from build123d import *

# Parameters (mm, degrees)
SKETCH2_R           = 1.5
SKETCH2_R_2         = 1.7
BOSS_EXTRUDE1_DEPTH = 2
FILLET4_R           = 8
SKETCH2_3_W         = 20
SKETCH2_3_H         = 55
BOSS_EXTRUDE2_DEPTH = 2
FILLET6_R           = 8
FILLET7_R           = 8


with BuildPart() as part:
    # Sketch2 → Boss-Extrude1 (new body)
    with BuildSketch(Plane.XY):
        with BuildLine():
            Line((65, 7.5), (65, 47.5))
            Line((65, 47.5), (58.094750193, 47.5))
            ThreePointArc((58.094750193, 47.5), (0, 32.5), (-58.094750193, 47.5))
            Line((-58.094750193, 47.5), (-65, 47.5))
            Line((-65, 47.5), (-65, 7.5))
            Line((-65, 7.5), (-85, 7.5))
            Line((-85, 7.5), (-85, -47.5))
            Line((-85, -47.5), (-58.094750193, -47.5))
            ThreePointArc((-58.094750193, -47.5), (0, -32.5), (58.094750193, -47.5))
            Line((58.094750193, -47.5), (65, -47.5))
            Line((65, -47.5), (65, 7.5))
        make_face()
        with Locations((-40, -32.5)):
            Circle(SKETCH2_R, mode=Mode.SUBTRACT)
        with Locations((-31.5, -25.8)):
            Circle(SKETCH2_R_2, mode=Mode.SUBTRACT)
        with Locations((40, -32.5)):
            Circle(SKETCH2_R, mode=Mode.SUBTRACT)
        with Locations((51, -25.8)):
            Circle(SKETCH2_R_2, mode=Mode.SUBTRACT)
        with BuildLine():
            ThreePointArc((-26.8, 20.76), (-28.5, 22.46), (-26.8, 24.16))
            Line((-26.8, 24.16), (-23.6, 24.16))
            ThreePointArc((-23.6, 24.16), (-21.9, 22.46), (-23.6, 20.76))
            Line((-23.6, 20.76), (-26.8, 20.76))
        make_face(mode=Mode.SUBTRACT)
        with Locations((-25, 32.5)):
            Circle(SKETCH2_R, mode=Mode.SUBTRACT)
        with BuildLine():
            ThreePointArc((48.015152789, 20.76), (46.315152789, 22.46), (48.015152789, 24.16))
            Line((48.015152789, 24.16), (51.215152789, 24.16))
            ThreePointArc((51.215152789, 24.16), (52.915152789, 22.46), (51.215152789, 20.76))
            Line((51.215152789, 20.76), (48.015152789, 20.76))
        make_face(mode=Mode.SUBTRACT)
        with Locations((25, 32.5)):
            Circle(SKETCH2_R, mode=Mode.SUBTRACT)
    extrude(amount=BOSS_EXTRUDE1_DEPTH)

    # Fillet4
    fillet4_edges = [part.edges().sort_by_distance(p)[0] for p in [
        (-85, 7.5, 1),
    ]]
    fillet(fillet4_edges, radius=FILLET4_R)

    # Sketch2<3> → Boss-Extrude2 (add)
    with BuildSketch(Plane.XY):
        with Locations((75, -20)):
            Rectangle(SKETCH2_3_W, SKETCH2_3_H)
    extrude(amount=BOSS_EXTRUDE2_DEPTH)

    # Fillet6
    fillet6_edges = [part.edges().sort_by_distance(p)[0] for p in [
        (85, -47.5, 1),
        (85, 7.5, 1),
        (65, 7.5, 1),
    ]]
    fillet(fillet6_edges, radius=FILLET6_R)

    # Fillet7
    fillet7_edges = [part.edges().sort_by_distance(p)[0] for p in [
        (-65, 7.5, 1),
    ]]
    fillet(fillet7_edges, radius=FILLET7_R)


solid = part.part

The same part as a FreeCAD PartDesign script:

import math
import FreeCAD as App
import Part
import Sketcher

V = App.Vector


def edges_at(feature, points):
    """Names of the edges that pass closest to the given points."""
    edges = feature.Shape.Edges
    near = lambda p: min(range(len(edges)), key=lambda i: edges[i].distToShape(Part.Vertex(*p))[0])
    return sorted({f"Edge{near(p) + 1}" for p in points})


def add_polygon(sketch, points):
    """Adds a closed chain of lines whose ends are joined by coincident constraints."""
    first, n = sketch.GeometryCount, len(points)
    for a, b in zip(points, points[1:] + points[:1]):
        sketch.addGeometry(Part.LineSegment(App.Vector(*a, 0), App.Vector(*b, 0)), False)
    for i in range(n):
        sketch.addConstraint(Sketcher.Constraint("Coincident", first + i, 2, first + (i + 1) % n, 1))

doc = App.newDocument("Part")
params = doc.addObject("Spreadsheet::Sheet", "Params")
for row, (alias, value) in enumerate([
    ("sketch1_diameter", "3 mm"),
    ("sketch1_radius", "120 mm"),
    ("sketch1_diameter2", "3.4 mm"),
    ("sketch1_width", "20 mm"),
    ("sketch1_height", "40 mm"),
    ("pad1_length", "2 mm"),
    ("fillet_radius", "8 mm"),
    ("sketch2_width", "20 mm"),
    ("sketch2_height", "55 mm"),
    ("pad2_length", "2 mm"),
    ("fillet2_radius", "8 mm"),
    ("fillet3_radius", "8 mm"),
], start=1):
    params.set(f"A{row}", alias)
    params.set(f"B{row}", "=" + value)
    params.setAlias(f"B{row}", alias)

body = doc.addObject("PartDesign::Body", "Body")

sketch1 = doc.addObject("Sketcher::SketchObject", "Sketch")
body.addObject(sketch1)
sketch1.AttachmentSupport = (doc.XY_Plane, [""])
sketch1.MapMode = "FlatFace"
sketch1.addGeometry([
    Part.LineSegment(V(65, 47.5, 0), V(58.1, 47.5, 0)),
    Part.ArcOfCircle(Part.Circle(V(0, 152.5, 0), V(0, 0, 1), 120), math.radians(-119), math.radians(-61)),
    Part.LineSegment(V(-58.1, 47.5, 0), V(-65, 47.5, 0)),
    Part.LineSegment(V(-65, 47.5, 0), V(-65, 7.5, 0)),
    Part.LineSegment(V(-65, 7.5, 0), V(-85, 7.5, 0)),
    Part.LineSegment(V(-85, 7.5, 0), V(-85, -47.5, 0)),
    Part.LineSegment(V(-85, -47.5, 0), V(-58.1, -47.5, 0)),
    Part.ArcOfCircle(Part.Circle(V(0, -152.5, 0), V(0, 0, 1), 120), math.radians(61), math.radians(119)),
    Part.LineSegment(V(58.1, -47.5, 0), V(65, -47.5, 0)),
    Part.LineSegment(V(65, -47.5, 0), V(65, 47.5, 0)),
    Part.Circle(V(-40, -32.5, 0), V(0, 0, 1), 1.5),
    Part.Circle(V(-31.5, -25.8, 0), V(0, 0, 1), 1.7),
    Part.Circle(V(40, -32.5, 0), V(0, 0, 1), 1.5),
    Part.Circle(V(51, -25.8, 0), V(0, 0, 1), 1.7),
    Part.LineSegment(V(-23.6, 20.8, 0), V(-26.8, 20.8, 0)),
    Part.ArcOfCircle(Part.Circle(V(-26.8, 22.5, 0), V(0, 0, 1), 1.7), math.radians(90), math.radians(270)),
    Part.LineSegment(V(-26.8, 24.2, 0), V(-23.6, 24.2, 0)),
    Part.ArcOfCircle(Part.Circle(V(-23.6, 22.5, 0), V(0, 0, 1), 1.7), math.radians(-90), math.radians(90)),
    Part.Circle(V(-25, 32.5, 0), V(0, 0, 1), 1.5),
    Part.Circle(V(25, 32.5, 0), V(0, 0, 1), 1.5),
    Part.LineSegment(V(51.2, 20.8, 0), V(48, 20.8, 0)),
    Part.ArcOfCircle(Part.Circle(V(48, 22.5, 0), V(0, 0, 1), 1.7), math.radians(90), math.radians(270)),
    Part.LineSegment(V(48, 24.2, 0), V(51.2, 24.2, 0)),
    Part.ArcOfCircle(Part.Circle(V(51.2, 22.5, 0), V(0, 0, 1), 1.7), math.radians(-90), math.radians(90)),
], False)
sketch1.addConstraint([
    Sketcher.Constraint("Coincident", 0, 2, 1, 2),
    Sketcher.Constraint("Coincident", 1, 1, 2, 1),
    Sketcher.Constraint("Coincident", 2, 2, 3, 1),
    Sketcher.Constraint("Coincident", 3, 2, 4, 1),
    Sketcher.Constraint("Coincident", 4, 2, 5, 1),
    Sketcher.Constraint("Coincident", 5, 2, 6, 1),
    Sketcher.Constraint("Coincident", 6, 2, 7, 2),
    Sketcher.Constraint("Coincident", 7, 1, 8, 1),
    Sketcher.Constraint("Coincident", 8, 2, 9, 1),
    Sketcher.Constraint("Coincident", 9, 2, 0, 1),
    Sketcher.Constraint("Tangent", 14, 2, 15, 2),
    Sketcher.Constraint("Tangent", 15, 1, 16, 1),
    Sketcher.Constraint("Tangent", 16, 2, 17, 2),
    Sketcher.Constraint("Tangent", 17, 1, 14, 1),
    Sketcher.Constraint("Tangent", 20, 2, 21, 2),
    Sketcher.Constraint("Tangent", 21, 1, 22, 1),
    Sketcher.Constraint("Tangent", 22, 2, 23, 2),
    Sketcher.Constraint("Tangent", 23, 1, 20, 1),
    Sketcher.Constraint("Horizontal", 0),
    Sketcher.Constraint("Horizontal", 2),
    Sketcher.Constraint("Vertical", 3),
    Sketcher.Constraint("Horizontal", 4),
    Sketcher.Constraint("Vertical", 5),
    Sketcher.Constraint("Horizontal", 6),
    Sketcher.Constraint("Horizontal", 8),
    Sketcher.Constraint("Vertical", 9),
    Sketcher.Constraint("Horizontal", 14),
    Sketcher.Constraint("Horizontal", 16),
    Sketcher.Constraint("Horizontal", 20),
    Sketcher.Constraint("Horizontal", 22),
    Sketcher.Constraint("Equal", 1, 7),
    Sketcher.Constraint("Equal", 10, 12),
    Sketcher.Constraint("Equal", 11, 13),
    Sketcher.Constraint("Equal", 13, 15),
    Sketcher.Constraint("Equal", 12, 18),
    Sketcher.Constraint("Equal", 18, 19),
    Sketcher.Constraint("Equal", 17, 21),
    Sketcher.Constraint("Symmetric", 1, 3, 7, 3, -1, 1),
    Sketcher.Constraint("Symmetric", 2, 2, 8, 2, -1, 1),
    Sketcher.Constraint("Symmetric", 10, 3, 12, 3, -2),
    Sketcher.Constraint("Symmetric", 18, 3, 19, 3, -2),
    Sketcher.Constraint("Symmetric", 0, 2, 1, 1, -2),
    Sketcher.Constraint("Horizontal", 11, 3, 13, 3),
    Sketcher.Constraint("Horizontal", 17, 3, 21, 3),
    Sketcher.Constraint("Horizontal", 6, 2, 7, 1),
    Sketcher.Constraint("Equal", 16, 20),
    Sketcher.Constraint("Diameter", 10, 3.0),
    Sketcher.Constraint("Radius", 1, 120.0),
    Sketcher.Constraint("Diameter", 11, 3.4),
    Sketcher.Constraint("DistanceX", 4, 2, 4, 1, 20.0),
    Sketcher.Constraint("DistanceY", 3, 2, 3, 1, 40.0),
    Sketcher.Constraint("DistanceY", 5, 2, 5, 1, 55.0),
    Sketcher.Constraint("DistanceX", 14, 2, 14, 1, 3.2),
    Sketcher.Constraint("DistanceX", 10, 3, -1, 1, 40.0),
    Sketcher.Constraint("DistanceX", -1, 1, 13, 3, 51.0),
    Sketcher.Constraint("DistanceX", 18, 3, -1, 1, 25.0),
    Sketcher.Constraint("DistanceX", 2, 2, -1, 1, 65.0),
    Sketcher.Constraint("DistanceY", 7, 3, 1, 3, 305.0),
    Sketcher.Constraint("DistanceY", 7, 3, 10, 3, 120.0),
    Sketcher.Constraint("DistanceY", 10, 3, 18, 3, 65.0),
    Sketcher.Constraint("DistanceX", 11, 3, -1, 1, 31.5),
    Sketcher.Constraint("DistanceY", 11, 3, -1, 1, 25.8),
    Sketcher.Constraint("DistanceX", 15, 3, -1, 1, 26.8),
    Sketcher.Constraint("DistanceY", -1, 1, 15, 3, 22.46),
    Sketcher.Constraint("DistanceX", -1, 1, 21, 3, 48.015153),
])
sketch1.setExpression("Constraints[46]", "Params.sketch1_diameter")
sketch1.setExpression("Constraints[47]", "Params.sketch1_radius")
sketch1.setExpression("Constraints[48]", "Params.sketch1_diameter2")
sketch1.setExpression("Constraints[49]", "Params.sketch1_width")
sketch1.setExpression("Constraints[50]", "Params.sketch1_height")
pad1 = doc.addObject("PartDesign::Pad", "Pad")
body.addObject(pad1)
pad1.Profile = sketch1
pad1.setExpression("Length", "Params.pad1_length")
doc.recompute()

fillet = doc.addObject("PartDesign::Fillet", "Fillet")
body.addObject(fillet)
fillet.Base = (pad1, edges_at(pad1, [(-85, 7.5, 1)]))
fillet.setExpression("Radius", "Params.fillet_radius")

sketch2 = doc.addObject("Sketcher::SketchObject", "Sketch001")
body.addObject(sketch2)
sketch2.AttachmentSupport = (doc.XY_Plane, [""])
sketch2.MapMode = "FlatFace"
add_polygon(sketch2, [(65, 8), (65, -48), (85, -48), (85, 8)])
sketch2.addConstraint([
    Sketcher.Constraint("Vertical", 0),
    Sketcher.Constraint("Horizontal", 1),
    Sketcher.Constraint("Vertical", 2),
    Sketcher.Constraint("Horizontal", 3),
    Sketcher.Constraint("DistanceX", 1, 1, 1, 2, 20.0),
    Sketcher.Constraint("DistanceY", 0, 2, 0, 1, 55.0),
    Sketcher.Constraint("DistanceX", -1, 1, 0, 2, 65.0),
    Sketcher.Constraint("DistanceY", 0, 2, -1, 1, 47.5),
])
sketch2.setExpression("Constraints[8]", "Params.sketch2_width")
sketch2.setExpression("Constraints[9]", "Params.sketch2_height")
pad2 = doc.addObject("PartDesign::Pad", "Pad001")
body.addObject(pad2)
pad2.Profile = sketch2
pad2.setExpression("Length", "Params.pad2_length")
doc.recompute()

fillet2 = doc.addObject("PartDesign::Fillet", "Fillet001")
body.addObject(fillet2)
fillet2.Base = (pad2, edges_at(pad2, [(85, -47.5, 1), (85, 7.5, 1), (65, 7.5, 1)]))
fillet2.setExpression("Radius", "Params.fillet2_radius")
doc.recompute()

fillet3 = doc.addObject("PartDesign::Fillet", "Fillet002")
body.addObject(fillet3)
fillet3.Base = (fillet2, edges_at(fillet2, [(-65, 7.5, 1)]))
fillet3.setExpression("Radius", "Params.fillet3_radius")

doc.recompute()
